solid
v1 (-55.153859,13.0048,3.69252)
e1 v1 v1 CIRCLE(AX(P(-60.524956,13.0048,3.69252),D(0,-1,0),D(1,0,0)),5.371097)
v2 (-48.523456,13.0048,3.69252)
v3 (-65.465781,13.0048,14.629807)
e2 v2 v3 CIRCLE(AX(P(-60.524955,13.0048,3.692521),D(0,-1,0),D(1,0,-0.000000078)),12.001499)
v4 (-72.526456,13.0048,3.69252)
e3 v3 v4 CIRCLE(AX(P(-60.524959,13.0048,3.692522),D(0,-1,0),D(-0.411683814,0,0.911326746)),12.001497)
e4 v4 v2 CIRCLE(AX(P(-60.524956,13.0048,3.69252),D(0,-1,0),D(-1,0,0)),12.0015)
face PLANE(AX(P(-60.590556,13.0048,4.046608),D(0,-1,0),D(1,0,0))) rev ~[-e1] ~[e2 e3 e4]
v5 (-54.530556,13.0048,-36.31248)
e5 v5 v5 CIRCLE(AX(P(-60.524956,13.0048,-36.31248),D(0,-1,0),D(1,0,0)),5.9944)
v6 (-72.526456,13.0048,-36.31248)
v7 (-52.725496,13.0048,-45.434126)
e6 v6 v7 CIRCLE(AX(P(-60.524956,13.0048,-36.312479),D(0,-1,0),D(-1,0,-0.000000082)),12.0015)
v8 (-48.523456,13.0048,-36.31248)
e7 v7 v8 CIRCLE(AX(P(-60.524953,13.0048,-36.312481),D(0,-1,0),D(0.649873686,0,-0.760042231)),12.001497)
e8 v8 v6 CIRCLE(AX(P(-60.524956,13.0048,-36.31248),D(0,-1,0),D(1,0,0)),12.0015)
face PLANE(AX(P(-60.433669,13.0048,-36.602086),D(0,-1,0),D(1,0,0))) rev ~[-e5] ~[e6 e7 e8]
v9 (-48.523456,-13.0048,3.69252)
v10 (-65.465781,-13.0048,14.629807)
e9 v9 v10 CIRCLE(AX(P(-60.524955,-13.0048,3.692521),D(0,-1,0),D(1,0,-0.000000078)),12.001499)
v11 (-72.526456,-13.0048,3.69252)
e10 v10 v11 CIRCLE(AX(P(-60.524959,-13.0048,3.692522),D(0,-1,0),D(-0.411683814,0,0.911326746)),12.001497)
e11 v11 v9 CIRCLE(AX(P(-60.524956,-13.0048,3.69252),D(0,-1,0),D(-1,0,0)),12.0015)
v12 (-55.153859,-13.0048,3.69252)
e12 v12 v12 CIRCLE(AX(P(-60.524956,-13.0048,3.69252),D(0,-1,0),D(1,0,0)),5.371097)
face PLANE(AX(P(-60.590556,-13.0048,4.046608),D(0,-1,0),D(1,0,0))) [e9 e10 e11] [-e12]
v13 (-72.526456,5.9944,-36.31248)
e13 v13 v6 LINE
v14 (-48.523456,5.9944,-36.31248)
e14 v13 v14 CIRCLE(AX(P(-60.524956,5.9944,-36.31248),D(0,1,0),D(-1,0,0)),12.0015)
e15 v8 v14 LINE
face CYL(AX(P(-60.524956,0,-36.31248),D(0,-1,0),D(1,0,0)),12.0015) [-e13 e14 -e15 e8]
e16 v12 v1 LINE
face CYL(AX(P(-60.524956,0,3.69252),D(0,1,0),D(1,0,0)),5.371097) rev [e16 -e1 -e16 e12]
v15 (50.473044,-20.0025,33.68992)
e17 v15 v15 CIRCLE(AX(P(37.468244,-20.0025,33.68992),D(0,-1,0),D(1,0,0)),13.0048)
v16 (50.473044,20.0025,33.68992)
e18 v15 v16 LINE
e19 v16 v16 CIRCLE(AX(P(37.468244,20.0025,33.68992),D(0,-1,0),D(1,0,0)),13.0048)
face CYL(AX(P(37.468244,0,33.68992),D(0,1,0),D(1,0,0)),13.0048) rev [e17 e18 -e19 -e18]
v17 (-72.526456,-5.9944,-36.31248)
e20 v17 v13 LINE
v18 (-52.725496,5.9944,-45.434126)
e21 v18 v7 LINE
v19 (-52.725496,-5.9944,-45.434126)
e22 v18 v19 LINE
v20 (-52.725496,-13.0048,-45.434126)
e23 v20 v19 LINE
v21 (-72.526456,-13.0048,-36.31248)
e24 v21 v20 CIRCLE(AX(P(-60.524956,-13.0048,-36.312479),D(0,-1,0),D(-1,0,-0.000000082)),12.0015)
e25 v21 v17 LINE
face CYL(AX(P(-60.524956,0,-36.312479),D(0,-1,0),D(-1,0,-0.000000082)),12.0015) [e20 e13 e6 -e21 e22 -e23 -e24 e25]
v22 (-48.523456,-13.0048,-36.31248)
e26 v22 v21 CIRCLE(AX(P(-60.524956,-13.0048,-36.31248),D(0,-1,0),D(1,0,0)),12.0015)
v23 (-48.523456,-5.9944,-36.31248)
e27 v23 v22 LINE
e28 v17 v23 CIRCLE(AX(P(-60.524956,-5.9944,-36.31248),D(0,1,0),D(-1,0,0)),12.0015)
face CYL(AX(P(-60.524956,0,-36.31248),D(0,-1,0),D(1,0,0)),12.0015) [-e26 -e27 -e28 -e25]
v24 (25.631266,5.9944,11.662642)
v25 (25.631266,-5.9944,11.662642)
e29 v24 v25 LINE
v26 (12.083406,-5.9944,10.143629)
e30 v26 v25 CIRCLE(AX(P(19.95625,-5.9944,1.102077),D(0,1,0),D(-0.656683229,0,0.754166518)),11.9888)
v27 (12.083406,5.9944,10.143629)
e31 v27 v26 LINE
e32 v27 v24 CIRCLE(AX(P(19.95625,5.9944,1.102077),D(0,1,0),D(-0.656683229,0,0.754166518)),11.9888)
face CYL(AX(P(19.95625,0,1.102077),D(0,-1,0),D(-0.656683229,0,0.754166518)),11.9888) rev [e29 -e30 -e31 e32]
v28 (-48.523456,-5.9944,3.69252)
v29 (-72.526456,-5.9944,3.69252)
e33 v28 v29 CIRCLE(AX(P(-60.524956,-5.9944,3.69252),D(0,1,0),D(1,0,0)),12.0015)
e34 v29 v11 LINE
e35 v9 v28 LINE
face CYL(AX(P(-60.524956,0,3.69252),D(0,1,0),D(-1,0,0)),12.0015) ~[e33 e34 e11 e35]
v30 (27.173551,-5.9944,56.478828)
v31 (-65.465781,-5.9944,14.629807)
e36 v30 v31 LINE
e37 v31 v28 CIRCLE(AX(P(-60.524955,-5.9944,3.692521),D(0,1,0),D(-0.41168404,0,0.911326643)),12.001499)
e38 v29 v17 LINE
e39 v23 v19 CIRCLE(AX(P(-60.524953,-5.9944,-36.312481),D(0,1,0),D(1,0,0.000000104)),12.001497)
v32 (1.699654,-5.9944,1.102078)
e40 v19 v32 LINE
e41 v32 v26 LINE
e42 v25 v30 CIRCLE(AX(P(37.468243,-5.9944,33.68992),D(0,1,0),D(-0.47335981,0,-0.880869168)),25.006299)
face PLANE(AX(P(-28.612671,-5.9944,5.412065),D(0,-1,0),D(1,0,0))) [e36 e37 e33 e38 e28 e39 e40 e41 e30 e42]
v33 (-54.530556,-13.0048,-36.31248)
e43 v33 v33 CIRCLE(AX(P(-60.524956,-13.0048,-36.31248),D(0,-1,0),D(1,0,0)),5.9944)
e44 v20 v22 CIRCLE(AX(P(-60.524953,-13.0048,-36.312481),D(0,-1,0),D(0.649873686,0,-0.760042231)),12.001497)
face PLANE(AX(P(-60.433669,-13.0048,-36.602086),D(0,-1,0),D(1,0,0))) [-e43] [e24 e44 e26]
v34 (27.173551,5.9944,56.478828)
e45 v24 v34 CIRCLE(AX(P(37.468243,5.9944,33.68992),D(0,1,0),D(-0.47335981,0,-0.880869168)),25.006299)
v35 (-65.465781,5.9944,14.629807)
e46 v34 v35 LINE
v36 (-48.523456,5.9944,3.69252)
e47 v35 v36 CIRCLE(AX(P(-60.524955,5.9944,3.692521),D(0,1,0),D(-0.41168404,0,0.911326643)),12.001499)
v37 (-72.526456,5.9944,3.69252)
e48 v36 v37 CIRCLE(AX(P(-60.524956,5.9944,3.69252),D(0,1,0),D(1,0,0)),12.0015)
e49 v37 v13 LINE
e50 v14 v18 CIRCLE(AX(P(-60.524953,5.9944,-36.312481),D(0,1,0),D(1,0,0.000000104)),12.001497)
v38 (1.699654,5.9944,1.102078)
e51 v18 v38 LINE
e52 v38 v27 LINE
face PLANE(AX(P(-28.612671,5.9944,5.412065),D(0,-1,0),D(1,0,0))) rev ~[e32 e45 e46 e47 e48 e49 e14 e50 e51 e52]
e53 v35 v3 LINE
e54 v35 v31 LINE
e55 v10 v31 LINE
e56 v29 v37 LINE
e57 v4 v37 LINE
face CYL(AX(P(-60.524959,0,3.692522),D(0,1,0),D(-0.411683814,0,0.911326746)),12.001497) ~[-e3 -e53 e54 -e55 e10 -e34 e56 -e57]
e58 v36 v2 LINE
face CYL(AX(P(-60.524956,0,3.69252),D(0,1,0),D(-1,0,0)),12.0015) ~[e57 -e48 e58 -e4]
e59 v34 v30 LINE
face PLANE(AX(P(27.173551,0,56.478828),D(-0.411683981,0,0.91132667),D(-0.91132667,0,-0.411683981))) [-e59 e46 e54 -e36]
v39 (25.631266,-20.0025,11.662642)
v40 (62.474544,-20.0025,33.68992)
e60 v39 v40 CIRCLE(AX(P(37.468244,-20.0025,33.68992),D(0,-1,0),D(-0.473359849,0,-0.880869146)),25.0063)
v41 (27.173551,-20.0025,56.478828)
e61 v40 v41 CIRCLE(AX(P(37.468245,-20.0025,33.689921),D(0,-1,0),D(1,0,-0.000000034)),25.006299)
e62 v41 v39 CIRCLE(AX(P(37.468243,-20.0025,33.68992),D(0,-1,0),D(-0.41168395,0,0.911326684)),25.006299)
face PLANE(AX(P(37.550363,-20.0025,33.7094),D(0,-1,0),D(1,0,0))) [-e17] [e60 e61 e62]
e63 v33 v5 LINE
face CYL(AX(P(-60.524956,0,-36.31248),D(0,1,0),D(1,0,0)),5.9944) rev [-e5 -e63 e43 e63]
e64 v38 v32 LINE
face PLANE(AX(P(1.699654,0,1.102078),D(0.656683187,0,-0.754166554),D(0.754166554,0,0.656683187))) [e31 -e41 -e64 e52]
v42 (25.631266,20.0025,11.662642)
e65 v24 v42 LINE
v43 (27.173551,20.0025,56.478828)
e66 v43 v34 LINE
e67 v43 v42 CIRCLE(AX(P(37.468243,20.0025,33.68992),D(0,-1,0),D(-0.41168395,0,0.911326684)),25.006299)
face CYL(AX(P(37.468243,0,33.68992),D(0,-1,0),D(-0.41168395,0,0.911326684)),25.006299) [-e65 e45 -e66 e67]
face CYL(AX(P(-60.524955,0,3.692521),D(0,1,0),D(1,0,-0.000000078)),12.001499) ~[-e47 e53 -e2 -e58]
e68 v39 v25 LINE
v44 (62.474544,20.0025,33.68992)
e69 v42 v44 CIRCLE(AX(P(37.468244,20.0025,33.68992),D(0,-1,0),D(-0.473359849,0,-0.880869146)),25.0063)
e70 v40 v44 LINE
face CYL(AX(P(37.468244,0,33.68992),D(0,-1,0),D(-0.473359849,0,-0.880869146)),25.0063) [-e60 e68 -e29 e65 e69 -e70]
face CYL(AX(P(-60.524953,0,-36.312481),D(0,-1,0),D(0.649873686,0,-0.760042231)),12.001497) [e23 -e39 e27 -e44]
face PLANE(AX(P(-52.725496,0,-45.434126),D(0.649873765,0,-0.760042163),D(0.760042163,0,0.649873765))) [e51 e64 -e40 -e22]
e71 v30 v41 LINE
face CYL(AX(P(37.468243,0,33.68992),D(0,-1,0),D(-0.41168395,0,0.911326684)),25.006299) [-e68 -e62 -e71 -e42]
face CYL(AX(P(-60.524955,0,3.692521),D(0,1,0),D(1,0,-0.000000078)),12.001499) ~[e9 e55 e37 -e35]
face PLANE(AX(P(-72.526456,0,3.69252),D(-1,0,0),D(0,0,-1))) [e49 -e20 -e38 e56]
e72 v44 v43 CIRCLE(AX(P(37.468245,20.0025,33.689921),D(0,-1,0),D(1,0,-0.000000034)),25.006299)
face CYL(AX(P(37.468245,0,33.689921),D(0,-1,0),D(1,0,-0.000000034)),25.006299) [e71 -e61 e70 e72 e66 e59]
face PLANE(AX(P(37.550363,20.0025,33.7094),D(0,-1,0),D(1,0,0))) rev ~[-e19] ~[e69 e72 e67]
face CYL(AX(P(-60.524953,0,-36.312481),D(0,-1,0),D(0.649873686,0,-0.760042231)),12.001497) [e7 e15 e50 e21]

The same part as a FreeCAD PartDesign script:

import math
import FreeCAD as App
import Part
import Sketcher
Q = App.Units.Quantity

doc = App.newDocument("Part")
body = doc.addObject("PartDesign::Body", "Body")

sketch1 = body.newObject("Sketcher::SketchObject", "Sketch")
sketch1.AttachmentSupport = (doc.getObject("XZ_Plane"), [""])
sketch1.MapMode = "FlatFace"
sketch1.addGeometry(Part.ArcOfCircle(Part.Circle(App.Vector(-61, -36, 0), App.Vector(0, 0, 1), 12), math.radians(0), math.radians(180)), False)
sketch1.addGeometry(Part.ArcOfCircle(Part.Circle(App.Vector(-61, -36, 0), App.Vector(0, 0, 1), 12), math.radians(-49), math.radians(0)), False)
sketch1.addGeometry(Part.LineSegment(App.Vector(-53, -45, 0), App.Vector(2, 1, 0)), False)
sketch1.addGeometry(Part.LineSegment(App.Vector(2, 1, 0), App.Vector(12, 10, 0)), False)
sketch1.addGeometry(Part.ArcOfCircle(Part.Circle(App.Vector(20, 1, 0), App.Vector(0, 0, 1), 12), math.radians(62), math.radians(131)), False)
sketch1.addGeometry(Part.ArcOfCircle(Part.Circle(App.Vector(37, 34, 0), App.Vector(0, 0, 1), 25), math.radians(114), math.radians(242)), False)
sketch1.addGeometry(Part.LineSegment(App.Vector(27, 56, 0), App.Vector(-65, 15, 0)), False)
sketch1.addGeometry(Part.ArcOfCircle(Part.Circle(App.Vector(-61, 4, 0), App.Vector(0, 0, 1), 12), math.radians(0), math.radians(114)), False)
sketch1.addGeometry(Part.ArcOfCircle(Part.Circle(App.Vector(-61, 4, 0), App.Vector(0, 0, 1), 12), math.radians(180), math.radians(360)), False)
sketch1.addGeometry(Part.LineSegment(App.Vector(-73, 4, 0), App.Vector(-73, -36, 0)), False)
sketch1.addConstraint(Sketcher.Constraint("Tangent", 0, 1, 1, 2))
sketch1.addConstraint(Sketcher.Constraint("Tangent", 1, 1, 2, 1))
sketch1.addConstraint(Sketcher.Constraint("Coincident", 2, 2, 3, 1))
sketch1.addConstraint(Sketcher.Constraint("Tangent", 3, 2, 4, 2))
sketch1.addConstraint(Sketcher.Constraint("Tangent", 4, 1, 5, 2))
sketch1.addConstraint(Sketcher.Constraint("Tangent", 5, 1, 6, 1))
sketch1.addConstraint(Sketcher.Constraint("Tangent", 6, 2, 7, 2))
sketch1.addConstraint(Sketcher.Constraint("Tangent", 7, 1, 8, 2))
sketch1.addConstraint(Sketcher.Constraint("Tangent", 8, 1, 9, 1))
sketch1.addConstraint(Sketcher.Constraint("Tangent", 9, 2, 0, 2))
sketch1.addConstraint(Sketcher.Constraint("Vertical", 9))
sketch1.addConstraint(Sketcher.Constraint("Equal", 0, 7))
sketch1.addConstraint(Sketcher.Constraint("Equal", 7, 8))
sketch1.addConstraint(Sketcher.Constraint("Horizontal", 1, 3, 0, 1))
sketch1.addConstraint(Sketcher.Constraint("Horizontal", 4, 3, 2, 2))
sketch1.addConstraint(Sketcher.Constraint("Horizontal", 8, 3, 7, 1))
sketch1.addConstraint(Sketcher.Constraint("Radius", 4, Q("0.472 in")))
sketch1.addConstraint(Sketcher.Constraint("Radius", 0, Q("0.4725 in")))
sketch1.addConstraint(Sketcher.Constraint("Radius", 1, Q("0.4724999 in")))
sketch1.addConstraint(Sketcher.Constraint("Radius", 5, Q("0.9845 in")))
sketch1.addConstraint(Sketcher.Constraint("DistanceY", 9, 2, 9, 1, Q("1.575 in")))
sketch1.addConstraint(Sketcher.Constraint("DistanceX", 1, 3, 5, 3, Q("3.8579999 in")))
sketch1.addConstraint(Sketcher.Constraint("DistanceY", 1, 3, 5, 3, Q("2.7560001 in")))
sketch1.addConstraint(Sketcher.Constraint("DistanceX", 3, 2, 5, 1, Q("0.5941002 in")))
sketch1.addConstraint(Sketcher.Constraint("DistanceY", 3, 2, 5, 1, Q("46.335199 mm")))
sketch1.addConstraint(Sketcher.Constraint("DistanceY", 0, 3, -1, 1, Q("36.31248 mm")))
sketch1.addConstraint(Sketcher.Constraint("DistanceX", -1, 1, 4, 3, Q("19.95625 mm")))
pad1 = body.newObject("PartDesign::Pad", "Pad")
pad1.Profile = sketch1
pad1.Length = Q("0.472 in")
pad1.Midplane = True

sketch2 = body.newObject("Sketcher::SketchObject", "Sketch001")
sketch2.AttachmentSupport = (doc.getObject("XZ_Plane"), [""])
sketch2.MapMode = "FlatFace"
sketch2.addGeometry(Part.ArcOfCircle(Part.Circle(App.Vector(37, 34, 0), App.Vector(0, 0, 1), 25), math.radians(0), math.radians(114)), False)
sketch2.addGeometry(Part.ArcOfCircle(Part.Circle(App.Vector(37, 34, 0), App.Vector(0, 0, 1), 25), math.radians(114), math.radians(242)), False)
sketch2.addGeometry(Part.ArcOfCircle(Part.Circle(App.Vector(37, 34, 0), App.Vector(0, 0, 1), 25), math.radians(-118), math.radians(0)), False)
sketch2.addGeometry(Part.Circle(App.Vector(37, 34, 0), App.Vector(0, 0, 1), 13), False)
sketch2.addConstraint(Sketcher.Constraint("Tangent", 0, 2, 1, 1))
sketch2.addConstraint(Sketcher.Constraint("Tangent", 1, 2, 2, 1))
sketch2.addConstraint(Sketcher.Constraint("Tangent", 2, 2, 0, 1))
sketch2.addConstraint(Sketcher.Constraint("Coincident", 3, 3, 0, 3))
sketch2.addConstraint(Sketcher.Constraint("Horizontal", 3, 3, 2, 2))
sketch2.addConstraint(Sketcher.Constraint("Diameter", 3, Q("1.024 in")))
sketch2.addConstraint(Sketcher.Constraint("Radius", 0, Q("0.9845 in")))
sketch2.addConstraint(Sketcher.Constraint("DistanceY", -1, 1, 0, 3, Q("33.689921 mm")))
sketch2.addConstraint(Sketcher.Constraint("DistanceX", -1, 1, 0, 2, Q("27.173551 mm")))
sketch2.addConstraint(Sketcher.Constraint("DistanceY", -1, 1, 0, 2, Q("56.478828 mm")))
sketch2.addConstraint(Sketcher.Constraint("DistanceY", 1, 2, 1, 3, Q("22.027278 mm")))
pad2 = body.newObject("PartDesign::Pad", "Pad001")
pad2.Profile = sketch2
pad2.Length = Q("1.575 in")
pad2.Midplane = True

sketch3 = body.newObject("Sketcher::SketchObject", "Sketch002")
sketch3.AttachmentSupport = (doc.getObject("XZ_Plane"), [""])
sketch3.MapMode = "FlatFace"
sketch3.addGeometry(Part.ArcOfCircle(Part.Circle(App.Vector(-61, 4, 0), App.Vector(0, 0, 1), 12), math.radians(114), math.radians(180)), False)
sketch3.addGeometry(Part.ArcOfCircle(Part.Circle(App.Vector(-61, 4, 0), App.Vector(0, 0, 1), 12), math.radians(180), math.radians(360)), False)
sketch3.addGeometry(Part.ArcOfCircle(Part.Circle(App.Vector(-61, 4, 0), App.Vector(0, 0, 1), 12), math.radians(0), math.radians(114)), False)
sketch3.addGeometry(Part.Circle(App.Vector(-61, 4, 0), App.Vector(0, 0, 1), 5), False)
sketch3.addGeometry(Part.ArcOfCircle(Part.Circle(App.Vector(-61, -36, 0), App.Vector(0, 0, 1), 12), math.radians(-49), math.radians(0)), False)
sketch3.addGeometry(Part.ArcOfCircle(Part.Circle(App.Vector(-61, -36, 0), App.Vector(0, 0, 1), 12), math.radians(0), math.radians(180)), False)
sketch3.addGeometry(Part.ArcOfCircle(Part.Circle(App.Vector(-61, -36, 0), App.Vector(0, 0, 1), 12), math.radians(-180), math.radians(-49)), False)
sketch3.addGeometry(Part.Circle(App.Vector(-61, -36, 0), App.Vector(0, 0, 1), 6), False)
sketch3.addConstraint(Sketcher.Constraint("Tangent", 0, 2, 1, 1))
sketch3.addConstraint(Sketcher.Constraint("Tangent", 1, 2, 2, 1))
sketch3.addConstraint(Sketcher.Constraint("Tangent", 2, 2, 0, 1))
sketch3.addConstraint(Sketcher.Constraint("Tangent", 4, 2, 5, 1))
sketch3.addConstraint(Sketcher.Constraint("Tangent", 5, 2, 6, 1))
sketch3.addConstraint(Sketcher.Constraint("Tangent", 6, 2, 4, 1))
sketch3.addConstraint(Sketcher.Constraint("Coincident", 3, 3, 0, 3))
sketch3.addConstraint(Sketcher.Constraint("Coincident", 7, 3, 4, 3))
sketch3.addConstraint(Sketcher.Constraint("Equal", 0, 4))
sketch3.addConstraint(Sketcher.Constraint("Horizontal", 3, 3, 0, 2))
sketch3.addConstraint(Sketcher.Constraint("Horizontal", 0, 2, 1, 2))
sketch3.addConstraint(Sketcher.Constraint("Horizontal", 7, 3, 4, 2))
sketch3.addConstraint(Sketcher.Constraint("Horizontal", 4, 2, 5, 2))
sketch3.addConstraint(Sketcher.Constraint("Vertical", 3, 3, 5, 3))
sketch3.addConstraint(Sketcher.Constraint("Diameter", 7, Q("0.472 in")))
sketch3.addConstraint(Sketcher.Constraint("Radius", 0, Q("0.4724999 in")))
sketch3.addConstraint(Sketcher.Constraint("DistanceY", 4, 3, 1, 3, Q("1.575 in")))
sketch3.addConstraint(Sketcher.Constraint("Diameter", 3, Q("10.742194 mm")))
sketch3.addConstraint(Sketcher.Constraint("DistanceX", 0, 3, -1, 1, Q("60.524959 mm")))
sketch3.addConstraint(Sketcher.Constraint("DistanceY", -1, 1, 0, 3, Q("3.692522 mm")))
sketch3.addConstraint(Sketcher.Constraint("DistanceX", 2, 2, -1, 1, Q("65.465781 mm")))
sketch3.addConstraint(Sketcher.Constraint("DistanceX", 6, 2, 4, 2, Q("4.20204 mm")))
pad3 = body.newObject("PartDesign::Pad", "Pad002")
pad3.Profile = sketch3
pad3.Length = Q("1.024 in")
pad3.Midplane = True

doc.recompute()
